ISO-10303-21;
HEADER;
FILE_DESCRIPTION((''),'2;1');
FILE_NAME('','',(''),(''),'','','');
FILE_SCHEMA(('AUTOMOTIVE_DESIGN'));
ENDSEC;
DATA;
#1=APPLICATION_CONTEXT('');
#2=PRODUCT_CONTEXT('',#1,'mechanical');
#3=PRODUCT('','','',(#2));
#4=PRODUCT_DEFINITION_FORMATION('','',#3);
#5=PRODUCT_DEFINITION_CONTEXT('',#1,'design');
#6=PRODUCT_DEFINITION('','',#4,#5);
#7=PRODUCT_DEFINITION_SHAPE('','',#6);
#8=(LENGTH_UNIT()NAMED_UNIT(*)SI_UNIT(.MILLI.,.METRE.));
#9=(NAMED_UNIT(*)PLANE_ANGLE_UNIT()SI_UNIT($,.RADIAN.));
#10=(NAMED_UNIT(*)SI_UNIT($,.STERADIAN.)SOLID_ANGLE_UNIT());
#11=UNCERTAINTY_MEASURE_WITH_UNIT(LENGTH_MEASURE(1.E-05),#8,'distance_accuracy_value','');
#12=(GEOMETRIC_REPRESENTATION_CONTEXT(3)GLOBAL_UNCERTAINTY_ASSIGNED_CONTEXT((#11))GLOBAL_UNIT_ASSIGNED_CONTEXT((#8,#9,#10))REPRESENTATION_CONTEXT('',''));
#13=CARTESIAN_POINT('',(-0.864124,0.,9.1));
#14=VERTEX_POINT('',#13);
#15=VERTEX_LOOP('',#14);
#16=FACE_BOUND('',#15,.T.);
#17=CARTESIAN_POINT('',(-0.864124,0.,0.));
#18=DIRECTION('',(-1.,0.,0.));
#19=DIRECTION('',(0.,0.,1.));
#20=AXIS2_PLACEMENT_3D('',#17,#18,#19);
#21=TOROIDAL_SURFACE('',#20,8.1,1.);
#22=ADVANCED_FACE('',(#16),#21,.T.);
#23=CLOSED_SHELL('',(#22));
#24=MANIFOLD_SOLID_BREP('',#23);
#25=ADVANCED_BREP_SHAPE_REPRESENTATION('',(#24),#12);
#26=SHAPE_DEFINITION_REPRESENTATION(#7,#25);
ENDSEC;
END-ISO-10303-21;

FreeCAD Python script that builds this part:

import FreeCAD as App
import Part
import Sketcher

doc = App.newDocument("Part")
body = doc.addObject("PartDesign::Body", "Body")

sketch1 = doc.addObject("Sketcher::SketchObject", "Sketch")
body.addObject(sketch1)
sketch1.AttachmentSupport = (doc.XY_Plane, [""])
sketch1.MapMode = "FlatFace"
sketch1.addGeometry(Part.Circle(App.Vector(-0.864124, 8.1, 0), App.Vector(0, 0, 1), 1), False)
sketch1.addConstraint([
    Sketcher.Constraint("Diameter", 0, 2.0),
    Sketcher.Constraint("DistanceY", -1, 1, 0, 3, 8.1),
    Sketcher.Constraint("DistanceX", 0, 3, -1, 1, 0.864124),
])
revolution = doc.addObject("PartDesign::Revolution", "Revolution")
body.addObject(revolution)
revolution.Profile = sketch1
revolution.ReferenceAxis = (sketch1, ["H_Axis"])
revolution.Angle = 360

doc.recompute()
